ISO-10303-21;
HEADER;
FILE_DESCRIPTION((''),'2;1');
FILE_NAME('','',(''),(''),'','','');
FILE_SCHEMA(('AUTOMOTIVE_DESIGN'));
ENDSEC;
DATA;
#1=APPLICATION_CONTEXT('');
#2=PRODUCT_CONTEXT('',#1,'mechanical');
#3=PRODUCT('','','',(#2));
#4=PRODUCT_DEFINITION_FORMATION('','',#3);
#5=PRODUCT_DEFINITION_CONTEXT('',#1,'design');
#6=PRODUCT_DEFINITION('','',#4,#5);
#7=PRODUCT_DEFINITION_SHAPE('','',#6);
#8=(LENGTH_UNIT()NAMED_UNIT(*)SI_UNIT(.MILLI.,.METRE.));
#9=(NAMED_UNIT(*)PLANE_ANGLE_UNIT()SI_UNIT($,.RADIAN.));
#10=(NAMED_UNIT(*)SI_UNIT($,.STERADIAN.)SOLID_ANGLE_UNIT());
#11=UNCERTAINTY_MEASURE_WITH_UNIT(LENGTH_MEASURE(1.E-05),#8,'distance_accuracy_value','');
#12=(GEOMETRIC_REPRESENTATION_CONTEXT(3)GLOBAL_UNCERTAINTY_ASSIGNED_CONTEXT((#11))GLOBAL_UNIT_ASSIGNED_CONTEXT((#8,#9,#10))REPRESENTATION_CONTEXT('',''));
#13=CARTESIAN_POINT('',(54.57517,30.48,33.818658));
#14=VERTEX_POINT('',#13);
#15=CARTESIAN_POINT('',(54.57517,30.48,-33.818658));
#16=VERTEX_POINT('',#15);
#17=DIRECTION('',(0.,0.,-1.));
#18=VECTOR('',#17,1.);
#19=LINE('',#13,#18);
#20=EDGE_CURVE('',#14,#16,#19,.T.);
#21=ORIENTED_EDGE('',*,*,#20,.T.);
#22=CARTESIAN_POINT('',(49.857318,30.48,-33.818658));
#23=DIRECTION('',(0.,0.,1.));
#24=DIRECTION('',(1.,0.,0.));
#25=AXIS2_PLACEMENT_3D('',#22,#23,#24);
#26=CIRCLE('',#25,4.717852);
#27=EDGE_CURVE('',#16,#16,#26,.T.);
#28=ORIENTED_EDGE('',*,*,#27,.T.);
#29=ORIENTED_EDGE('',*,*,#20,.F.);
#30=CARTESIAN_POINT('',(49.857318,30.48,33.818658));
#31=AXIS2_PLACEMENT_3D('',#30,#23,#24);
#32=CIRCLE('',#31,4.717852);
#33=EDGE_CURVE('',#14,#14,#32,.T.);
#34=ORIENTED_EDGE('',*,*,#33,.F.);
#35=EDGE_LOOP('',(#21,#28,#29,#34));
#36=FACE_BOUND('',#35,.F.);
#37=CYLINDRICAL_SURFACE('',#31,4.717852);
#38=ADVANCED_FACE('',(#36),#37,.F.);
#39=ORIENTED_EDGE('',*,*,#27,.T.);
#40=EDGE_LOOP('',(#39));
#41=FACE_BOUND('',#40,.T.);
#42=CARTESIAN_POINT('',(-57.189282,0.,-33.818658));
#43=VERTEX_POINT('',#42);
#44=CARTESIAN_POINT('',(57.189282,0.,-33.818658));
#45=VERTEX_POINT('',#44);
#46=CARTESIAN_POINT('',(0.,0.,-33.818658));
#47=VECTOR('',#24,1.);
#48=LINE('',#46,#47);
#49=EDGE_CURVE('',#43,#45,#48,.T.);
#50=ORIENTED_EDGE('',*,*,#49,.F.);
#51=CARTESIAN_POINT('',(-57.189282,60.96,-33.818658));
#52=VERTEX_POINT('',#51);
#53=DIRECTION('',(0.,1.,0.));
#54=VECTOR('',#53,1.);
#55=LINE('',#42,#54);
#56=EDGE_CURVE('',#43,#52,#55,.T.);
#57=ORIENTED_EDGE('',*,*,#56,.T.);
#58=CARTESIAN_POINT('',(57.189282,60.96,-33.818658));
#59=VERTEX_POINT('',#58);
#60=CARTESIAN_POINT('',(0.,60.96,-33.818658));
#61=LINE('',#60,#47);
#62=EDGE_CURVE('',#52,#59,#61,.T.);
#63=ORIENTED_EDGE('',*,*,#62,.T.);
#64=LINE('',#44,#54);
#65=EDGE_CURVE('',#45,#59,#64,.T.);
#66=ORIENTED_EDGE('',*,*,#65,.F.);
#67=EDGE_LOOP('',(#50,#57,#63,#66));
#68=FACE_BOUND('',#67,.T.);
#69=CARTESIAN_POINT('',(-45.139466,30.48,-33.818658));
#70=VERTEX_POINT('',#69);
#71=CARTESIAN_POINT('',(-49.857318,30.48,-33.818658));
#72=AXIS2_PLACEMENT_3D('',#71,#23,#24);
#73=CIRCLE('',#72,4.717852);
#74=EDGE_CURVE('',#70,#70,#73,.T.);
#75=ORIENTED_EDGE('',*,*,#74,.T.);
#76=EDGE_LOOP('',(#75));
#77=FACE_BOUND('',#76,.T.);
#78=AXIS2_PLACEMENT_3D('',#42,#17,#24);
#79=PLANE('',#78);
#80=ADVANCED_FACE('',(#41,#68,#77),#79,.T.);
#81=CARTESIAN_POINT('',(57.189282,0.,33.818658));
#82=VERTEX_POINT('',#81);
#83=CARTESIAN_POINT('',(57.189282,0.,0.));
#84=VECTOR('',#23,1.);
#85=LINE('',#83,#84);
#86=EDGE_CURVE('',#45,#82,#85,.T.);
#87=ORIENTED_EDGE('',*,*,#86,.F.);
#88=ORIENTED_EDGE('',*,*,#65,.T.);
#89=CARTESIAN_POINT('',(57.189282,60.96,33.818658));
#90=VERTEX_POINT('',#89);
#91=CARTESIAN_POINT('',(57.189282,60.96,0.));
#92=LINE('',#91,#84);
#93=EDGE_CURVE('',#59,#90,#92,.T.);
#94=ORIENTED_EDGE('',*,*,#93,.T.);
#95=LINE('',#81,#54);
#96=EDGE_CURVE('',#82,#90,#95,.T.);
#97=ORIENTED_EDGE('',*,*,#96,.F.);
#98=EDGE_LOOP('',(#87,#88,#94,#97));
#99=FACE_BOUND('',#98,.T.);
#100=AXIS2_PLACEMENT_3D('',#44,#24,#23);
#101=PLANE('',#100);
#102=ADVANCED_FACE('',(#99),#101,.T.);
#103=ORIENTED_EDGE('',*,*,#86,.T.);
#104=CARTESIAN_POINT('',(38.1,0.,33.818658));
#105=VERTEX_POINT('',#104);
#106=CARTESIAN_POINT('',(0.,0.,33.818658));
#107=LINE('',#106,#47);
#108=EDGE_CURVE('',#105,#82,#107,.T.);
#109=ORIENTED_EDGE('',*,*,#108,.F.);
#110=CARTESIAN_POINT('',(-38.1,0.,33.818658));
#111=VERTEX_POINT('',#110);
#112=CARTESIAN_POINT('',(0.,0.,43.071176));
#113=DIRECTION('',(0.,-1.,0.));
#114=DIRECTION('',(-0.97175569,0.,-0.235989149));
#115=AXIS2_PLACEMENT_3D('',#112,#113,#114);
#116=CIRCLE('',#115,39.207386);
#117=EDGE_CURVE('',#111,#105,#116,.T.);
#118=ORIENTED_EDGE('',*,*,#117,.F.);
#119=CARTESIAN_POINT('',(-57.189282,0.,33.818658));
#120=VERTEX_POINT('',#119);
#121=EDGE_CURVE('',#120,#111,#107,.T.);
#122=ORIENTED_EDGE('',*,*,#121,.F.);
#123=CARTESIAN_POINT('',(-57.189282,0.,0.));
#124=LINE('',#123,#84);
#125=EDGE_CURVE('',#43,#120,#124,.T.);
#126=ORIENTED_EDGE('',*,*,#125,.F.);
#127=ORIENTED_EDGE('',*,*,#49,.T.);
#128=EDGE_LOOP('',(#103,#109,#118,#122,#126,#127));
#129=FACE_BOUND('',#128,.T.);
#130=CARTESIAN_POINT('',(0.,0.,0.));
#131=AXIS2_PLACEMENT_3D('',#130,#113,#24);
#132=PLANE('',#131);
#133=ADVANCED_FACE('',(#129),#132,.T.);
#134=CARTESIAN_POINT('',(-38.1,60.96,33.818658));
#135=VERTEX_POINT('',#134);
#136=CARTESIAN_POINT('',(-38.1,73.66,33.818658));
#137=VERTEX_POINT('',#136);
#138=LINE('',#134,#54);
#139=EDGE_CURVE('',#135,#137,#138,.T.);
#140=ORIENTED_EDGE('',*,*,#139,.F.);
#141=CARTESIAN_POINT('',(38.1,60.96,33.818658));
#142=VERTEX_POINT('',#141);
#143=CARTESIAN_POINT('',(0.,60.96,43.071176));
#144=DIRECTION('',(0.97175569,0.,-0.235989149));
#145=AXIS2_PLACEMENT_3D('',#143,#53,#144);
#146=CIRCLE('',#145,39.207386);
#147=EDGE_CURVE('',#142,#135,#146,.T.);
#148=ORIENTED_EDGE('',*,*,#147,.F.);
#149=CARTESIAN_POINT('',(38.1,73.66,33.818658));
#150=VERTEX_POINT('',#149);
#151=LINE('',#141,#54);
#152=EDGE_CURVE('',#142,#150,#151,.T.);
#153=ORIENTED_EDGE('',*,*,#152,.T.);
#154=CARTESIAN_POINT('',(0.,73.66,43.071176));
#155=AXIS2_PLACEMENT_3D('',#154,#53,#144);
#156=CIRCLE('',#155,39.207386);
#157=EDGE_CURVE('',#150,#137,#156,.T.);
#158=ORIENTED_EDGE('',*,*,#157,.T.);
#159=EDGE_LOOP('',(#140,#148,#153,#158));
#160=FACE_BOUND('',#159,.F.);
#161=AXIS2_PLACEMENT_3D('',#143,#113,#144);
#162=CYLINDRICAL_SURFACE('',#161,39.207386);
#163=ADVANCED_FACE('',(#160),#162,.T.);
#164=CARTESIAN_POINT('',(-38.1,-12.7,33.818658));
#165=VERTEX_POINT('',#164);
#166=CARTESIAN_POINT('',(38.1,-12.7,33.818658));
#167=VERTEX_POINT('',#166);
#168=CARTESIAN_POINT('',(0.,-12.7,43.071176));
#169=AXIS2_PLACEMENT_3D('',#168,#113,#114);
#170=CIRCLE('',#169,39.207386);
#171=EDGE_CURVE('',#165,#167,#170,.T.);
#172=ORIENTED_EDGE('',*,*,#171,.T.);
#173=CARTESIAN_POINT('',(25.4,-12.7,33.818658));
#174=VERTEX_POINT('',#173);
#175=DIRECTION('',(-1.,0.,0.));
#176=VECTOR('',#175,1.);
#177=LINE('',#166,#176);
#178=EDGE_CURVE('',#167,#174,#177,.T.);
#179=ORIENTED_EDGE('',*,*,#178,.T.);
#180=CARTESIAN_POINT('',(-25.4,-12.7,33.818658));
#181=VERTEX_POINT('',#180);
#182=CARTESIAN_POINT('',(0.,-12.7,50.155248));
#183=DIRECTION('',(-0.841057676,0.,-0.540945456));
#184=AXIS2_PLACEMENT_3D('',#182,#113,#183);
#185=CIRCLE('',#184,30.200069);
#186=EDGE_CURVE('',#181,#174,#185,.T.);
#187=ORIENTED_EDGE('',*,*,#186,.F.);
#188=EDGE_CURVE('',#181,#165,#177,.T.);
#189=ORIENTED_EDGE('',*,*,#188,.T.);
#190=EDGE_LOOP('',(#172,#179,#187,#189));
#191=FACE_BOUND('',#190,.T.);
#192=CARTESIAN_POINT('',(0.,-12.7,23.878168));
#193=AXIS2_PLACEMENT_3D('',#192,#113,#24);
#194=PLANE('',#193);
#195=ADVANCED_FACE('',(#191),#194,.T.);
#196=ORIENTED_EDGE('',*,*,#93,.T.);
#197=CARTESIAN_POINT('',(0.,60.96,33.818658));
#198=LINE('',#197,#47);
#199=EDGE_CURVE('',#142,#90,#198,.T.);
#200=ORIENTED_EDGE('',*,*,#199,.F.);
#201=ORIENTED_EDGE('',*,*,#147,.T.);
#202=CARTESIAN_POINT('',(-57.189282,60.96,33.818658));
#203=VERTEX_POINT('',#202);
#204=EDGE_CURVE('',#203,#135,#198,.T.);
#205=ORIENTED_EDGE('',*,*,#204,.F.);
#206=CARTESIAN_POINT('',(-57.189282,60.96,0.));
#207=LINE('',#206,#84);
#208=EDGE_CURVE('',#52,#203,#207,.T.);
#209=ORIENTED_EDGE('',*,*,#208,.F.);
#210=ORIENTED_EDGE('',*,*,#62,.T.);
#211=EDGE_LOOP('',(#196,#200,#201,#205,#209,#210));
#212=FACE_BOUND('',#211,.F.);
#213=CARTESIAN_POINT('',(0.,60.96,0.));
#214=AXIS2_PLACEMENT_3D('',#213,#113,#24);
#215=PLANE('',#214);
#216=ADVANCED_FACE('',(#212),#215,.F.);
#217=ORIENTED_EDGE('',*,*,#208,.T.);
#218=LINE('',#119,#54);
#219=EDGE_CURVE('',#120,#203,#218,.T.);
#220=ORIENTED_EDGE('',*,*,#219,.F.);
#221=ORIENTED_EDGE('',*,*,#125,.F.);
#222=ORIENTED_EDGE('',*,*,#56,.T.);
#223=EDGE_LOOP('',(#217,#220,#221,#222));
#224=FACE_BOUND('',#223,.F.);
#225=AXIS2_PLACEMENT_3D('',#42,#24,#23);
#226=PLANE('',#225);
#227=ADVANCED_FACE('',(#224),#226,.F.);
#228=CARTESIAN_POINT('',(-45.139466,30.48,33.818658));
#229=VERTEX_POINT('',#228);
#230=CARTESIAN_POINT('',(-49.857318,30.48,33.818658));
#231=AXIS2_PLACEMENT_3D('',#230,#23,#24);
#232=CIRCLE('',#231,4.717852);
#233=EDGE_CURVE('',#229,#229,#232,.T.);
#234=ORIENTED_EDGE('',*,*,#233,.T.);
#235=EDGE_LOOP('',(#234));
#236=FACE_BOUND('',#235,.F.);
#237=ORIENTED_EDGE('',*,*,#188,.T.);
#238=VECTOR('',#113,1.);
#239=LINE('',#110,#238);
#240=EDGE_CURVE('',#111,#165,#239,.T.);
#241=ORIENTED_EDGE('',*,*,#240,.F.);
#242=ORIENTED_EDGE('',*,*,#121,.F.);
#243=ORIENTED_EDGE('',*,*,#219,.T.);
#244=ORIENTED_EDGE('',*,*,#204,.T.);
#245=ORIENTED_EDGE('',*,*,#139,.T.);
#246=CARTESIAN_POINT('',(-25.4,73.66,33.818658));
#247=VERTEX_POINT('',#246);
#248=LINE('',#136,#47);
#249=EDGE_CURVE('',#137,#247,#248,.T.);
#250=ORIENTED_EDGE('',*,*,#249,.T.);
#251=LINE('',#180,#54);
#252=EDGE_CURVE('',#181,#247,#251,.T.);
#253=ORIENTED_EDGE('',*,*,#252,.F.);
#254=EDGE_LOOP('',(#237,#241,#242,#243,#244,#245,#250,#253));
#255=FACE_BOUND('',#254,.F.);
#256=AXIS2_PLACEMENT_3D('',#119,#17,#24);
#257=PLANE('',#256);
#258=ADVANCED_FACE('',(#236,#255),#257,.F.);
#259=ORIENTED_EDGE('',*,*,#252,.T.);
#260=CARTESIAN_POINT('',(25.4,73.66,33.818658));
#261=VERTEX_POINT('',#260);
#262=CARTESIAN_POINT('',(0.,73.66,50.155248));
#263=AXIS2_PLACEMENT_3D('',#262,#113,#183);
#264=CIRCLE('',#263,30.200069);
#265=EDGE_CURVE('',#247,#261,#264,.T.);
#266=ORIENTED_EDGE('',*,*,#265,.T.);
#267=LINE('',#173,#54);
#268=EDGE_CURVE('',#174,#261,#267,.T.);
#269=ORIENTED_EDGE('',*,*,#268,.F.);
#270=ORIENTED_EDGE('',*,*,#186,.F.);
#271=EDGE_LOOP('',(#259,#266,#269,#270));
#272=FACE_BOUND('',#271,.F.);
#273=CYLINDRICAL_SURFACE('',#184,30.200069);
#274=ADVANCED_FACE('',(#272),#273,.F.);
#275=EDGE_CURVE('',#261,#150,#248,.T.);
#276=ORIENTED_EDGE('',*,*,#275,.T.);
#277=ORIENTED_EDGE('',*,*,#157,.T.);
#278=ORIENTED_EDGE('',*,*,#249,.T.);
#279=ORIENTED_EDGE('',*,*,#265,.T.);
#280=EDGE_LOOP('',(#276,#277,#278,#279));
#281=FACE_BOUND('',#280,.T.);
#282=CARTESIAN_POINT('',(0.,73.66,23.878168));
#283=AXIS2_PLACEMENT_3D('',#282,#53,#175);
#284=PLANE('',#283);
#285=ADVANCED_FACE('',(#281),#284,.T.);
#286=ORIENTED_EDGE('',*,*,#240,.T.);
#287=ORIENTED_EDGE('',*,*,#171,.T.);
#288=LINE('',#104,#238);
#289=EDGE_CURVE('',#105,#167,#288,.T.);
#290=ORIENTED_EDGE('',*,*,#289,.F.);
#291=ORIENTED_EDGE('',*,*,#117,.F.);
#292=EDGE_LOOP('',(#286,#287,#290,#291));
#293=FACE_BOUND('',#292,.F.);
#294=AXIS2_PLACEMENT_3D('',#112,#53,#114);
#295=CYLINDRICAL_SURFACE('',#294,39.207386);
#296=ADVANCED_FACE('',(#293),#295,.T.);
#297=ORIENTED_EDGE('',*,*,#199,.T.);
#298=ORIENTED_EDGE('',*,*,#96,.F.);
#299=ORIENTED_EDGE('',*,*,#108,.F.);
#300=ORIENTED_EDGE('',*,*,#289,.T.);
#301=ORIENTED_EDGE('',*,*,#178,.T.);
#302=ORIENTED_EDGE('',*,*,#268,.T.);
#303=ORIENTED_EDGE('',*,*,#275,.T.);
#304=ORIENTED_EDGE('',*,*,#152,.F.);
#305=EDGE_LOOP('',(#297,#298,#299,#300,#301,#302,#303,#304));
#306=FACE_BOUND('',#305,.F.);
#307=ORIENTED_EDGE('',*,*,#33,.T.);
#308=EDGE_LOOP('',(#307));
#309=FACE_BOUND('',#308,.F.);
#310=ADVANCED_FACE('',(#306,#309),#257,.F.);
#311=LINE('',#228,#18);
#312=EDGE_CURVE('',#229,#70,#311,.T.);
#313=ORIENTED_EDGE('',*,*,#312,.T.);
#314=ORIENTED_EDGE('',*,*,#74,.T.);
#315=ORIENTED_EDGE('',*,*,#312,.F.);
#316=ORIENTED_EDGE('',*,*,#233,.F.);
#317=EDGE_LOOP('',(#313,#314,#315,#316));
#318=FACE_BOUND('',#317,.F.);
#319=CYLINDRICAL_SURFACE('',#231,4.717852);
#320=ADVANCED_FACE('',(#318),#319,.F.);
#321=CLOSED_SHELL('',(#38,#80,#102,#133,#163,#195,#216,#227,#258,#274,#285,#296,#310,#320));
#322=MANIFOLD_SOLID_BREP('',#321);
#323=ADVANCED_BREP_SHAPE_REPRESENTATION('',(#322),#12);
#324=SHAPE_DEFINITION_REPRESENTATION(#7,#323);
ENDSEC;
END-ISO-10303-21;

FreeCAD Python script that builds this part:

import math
import FreeCAD as App
import Part
import Sketcher
from FreeCAD import Vector
Q = App.Units.Quantity


def add_polygon(sketch, points):
    """Adds a closed chain of lines whose ends are joined by coincident constraints."""
    first, n = sketch.GeometryCount, len(points)
    for a, b in zip(points, points[1:] + points[:1]):
        sketch.addGeometry(Part.LineSegment(App.Vector(*a, 0), App.Vector(*b, 0)), False)
    for i in range(n):
        sketch.addConstraint(Sketcher.Constraint("Coincident", first + i, 2, first + (i + 1) % n, 1))

doc = App.newDocument("Part")
body = doc.addObject("PartDesign::Body", "Body")

sketch1 = body.newObject("Sketcher::SketchObject", "Sketch")
sketch1.AttachmentSupport = (doc.getObject("XZ_Plane"), [""])
sketch1.MapMode = "FlatFace"
add_polygon(sketch1, [(-57, 34), (-57, -34), (57, -34), (57, 34)])
sketch1.addConstraint([
    Sketcher.Constraint("Vertical", 0),
    Sketcher.Constraint("Horizontal", 1),
    Sketcher.Constraint("Vertical", 2),
    Sketcher.Constraint("Horizontal", 3),
    Sketcher.Constraint("Symmetric", 0, 2, 2, 2, -1, 1),
    Sketcher.Constraint("DistanceX", 1, 1, 1, 2, Q("114.378564 mm")),
    Sketcher.Constraint("DistanceY", 0, 2, 0, 1, Q("67.637316 mm")),
])
pad1 = body.newObject("PartDesign::Pad", "Pad")
pad1.Profile = sketch1
pad1.Length = Q("2.4 in")
pad1.Reversed = True

sketch2 = body.newObject("Sketcher::SketchObject", "Sketch001")
sketch2.AttachmentSupport = (doc.getObject("XZ_Plane"), [""])
sketch2.MapMode = "FlatFace"
sketch2.AttachmentOffset = App.Placement(Vector(0, 0, -2.4 * 25.4), App.Rotation())
sketch2.addGeometry([
    Part.ArcOfCircle(Part.Circle(Vector(0, 43, 0), Vector(0, 0, 1), 39), math.radians(-166), math.radians(-14)),
    Part.LineSegment(Vector(-38, 34, 0), Vector(38, 34, 0)),
], False)
sketch2.addConstraint([
    Sketcher.Constraint("Coincident", 0, 1, 1, 1),
    Sketcher.Constraint("Coincident", 1, 2, 0, 2),
    Sketcher.Constraint("Horizontal", 1),
    Sketcher.Constraint("PointOnObject", 0, 3, -2),
    Sketcher.Constraint("DistanceX", 1, 1, 1, 2, Q("3 in")),
    Sketcher.Constraint("Radius", 0, Q("39.207386 mm")),
    Sketcher.Constraint("DistanceY", -1, 1, 0, 1, Q("33.818658 mm")),
])
pad2 = body.newObject("PartDesign::Pad", "Pad001")
pad2.Profile = sketch2
pad2.Length = Q("0.5 in")
pad2.Reversed = True

sketch3 = body.newObject("Sketcher::SketchObject", "Sketch002")
sketch3.AttachmentSupport = (doc.getObject("XZ_Plane"), [""])
sketch3.MapMode = "FlatFace"
sketch3.addGeometry([
    Part.ArcOfCircle(Part.Circle(Vector(0, 43, 0), Vector(0, 0, 1), 39), math.radians(-166), math.radians(-14)),
    Part.LineSegment(Vector(38, 34, 0), Vector(-38, 34, 0)),
], False)
sketch3.addConstraint([
    Sketcher.Constraint("Coincident", 0, 1, 1, 2),
    Sketcher.Constraint("Coincident", 1, 1, 0, 2),
    Sketcher.Constraint("Horizontal", 1),
    Sketcher.Constraint("PointOnObject", 0, 3, -2),
    Sketcher.Constraint("DistanceX", 1, 2, 1, 1, Q("3 in")),
    Sketcher.Constraint("Radius", 0, Q("39.207386 mm")),
    Sketcher.Constraint("DistanceY", -1, 1, 0, 1, Q("33.818658 mm")),
])
pad3 = body.newObject("PartDesign::Pad", "Pad002")
pad3.Profile = sketch3
pad3.Length = Q("0.5 in")

sketch4 = body.newObject("Sketcher::SketchObject", "Sketch003")
sketch4.AttachmentSupport = (doc.getObject("XZ_Plane"), [""])
sketch4.MapMode = "FlatFace"
sketch4.AttachmentOffset = App.Placement(Vector(0, 0, 0.5 * 25.4), App.Rotation())
sketch4.addGeometry([
    Part.ArcOfCircle(Part.Circle(Vector(0, 50, 0), Vector(0, 0, 1), 30), math.radians(-147), math.radians(-33)),
    Part.LineSegment(Vector(25, 34, 0), Vector(-25, 34, 0)),
], False)
sketch4.addConstraint([
    Sketcher.Constraint("Coincident", 0, 1, 1, 2),
    Sketcher.Constraint("Coincident", 1, 1, 0, 2),
    Sketcher.Constraint("Horizontal", 1),
    Sketcher.Constraint("PointOnObject", 0, 3, -2),
    Sketcher.Constraint("DistanceX", 1, 2, 1, 1, Q("2 in")),
    Sketcher.Constraint("Radius", 0, Q("30.200069 mm")),
    Sketcher.Constraint("DistanceY", -1, 1, 0, 3, Q("50.155248 mm")),
])
pocket1 = body.newObject("PartDesign::Pocket", "Pocket")
pocket1.Profile = sketch4
pocket1.Type = "ThroughAll"

sketch5 = body.newObject("Sketcher::SketchObject", "Sketch004")
sketch5.AttachmentSupport = (doc.getObject("XY_Plane"), [""])
sketch5.MapMode = "FlatFace"
sketch5.AttachmentOffset = App.Placement(Vector(0, 0, 33.818658), App.Rotation())
sketch5.addGeometry([
    Part.Circle(Vector(-49.9, 30.5, 0), Vector(0, 0, 1), 4.7),
    Part.Circle(Vector(49.9, 30.5, 0), Vector(0, 0, 1), 4.7),
], False)
sketch5.addConstraint([
    Sketcher.Constraint("Equal", 0, 1),
    Sketcher.Constraint("Symmetric", 0, 3, 1, 3, -2),
    Sketcher.Constraint("DistanceY", -1, 1, 0, 3, Q("1.2 in")),
    Sketcher.Constraint("Diameter", 0, Q("9.435704 mm")),
    Sketcher.Constraint("DistanceX", 0, 3, -1, 1, Q("49.857318 mm")),
])
pocket2 = body.newObject("PartDesign::Pocket", "Pocket001")
pocket2.Profile = sketch5
pocket2.Type = "ThroughAll"

doc.recompute()
